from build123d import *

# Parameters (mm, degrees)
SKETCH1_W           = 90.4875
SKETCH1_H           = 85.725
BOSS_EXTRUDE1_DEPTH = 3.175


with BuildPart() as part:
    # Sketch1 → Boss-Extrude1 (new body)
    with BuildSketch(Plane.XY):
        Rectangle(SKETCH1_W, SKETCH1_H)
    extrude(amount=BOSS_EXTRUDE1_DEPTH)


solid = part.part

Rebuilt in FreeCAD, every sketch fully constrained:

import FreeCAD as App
import Part
import Sketcher
from FreeCAD import Vector
Q = App.Units.Quantity

doc = App.newDocument("Part")
params = doc.addObject("Spreadsheet::Sheet", "Params")
for row, (alias, value) in enumerate([
    ("sketch1_width", "3.5625 in"),
    ("sketch1_height", "3.375 in"),
    ("pad1_length", "0.125 in"),
], start=1):
    params.set(f"A{row}", alias)
    params.set(f"B{row}", "=" + value)
    params.setAlias(f"B{row}", alias)

body = doc.addObject("PartDesign::Body", "Body")

sketch1 = body.newObject("Sketcher::SketchObject", "Sketch")
sketch1.AttachmentSupport = (doc.getObject("XY_Plane"), [""])
sketch1.MapMode = "FlatFace"
sketch1.addGeometry([
    Part.LineSegment(Vector(-45, 43, 0), Vector(-45, -43, 0)),
    Part.LineSegment(Vector(-45, -43, 0), Vector(45, -43, 0)),
    Part.LineSegment(Vector(45, -43, 0), Vector(45, 43, 0)),
    Part.LineSegment(Vector(45, 43, 0), Vector(-45, 43, 0)),
], False)
sketch1.addConstraint([
    Sketcher.Constraint("Coincident", 0, 2, 1, 1),
    Sketcher.Constraint("Coincident", 1, 2, 2, 1),
    Sketcher.Constraint("Coincident", 2, 2, 3, 1),
    Sketcher.Constraint("Coincident", 3, 2, 0, 1),
    Sketcher.Constraint("Vertical", 0),
    Sketcher.Constraint("Horizontal", 1),
    Sketcher.Constraint("Vertical", 2),
    Sketcher.Constraint("Horizontal", 3),
    Sketcher.Constraint("Symmetric", 0, 2, 2, 2, -1, 1),
    Sketcher.Constraint("DistanceX", 1, 1, 1, 2, Q("3.5625 in")),
    Sketcher.Constraint("DistanceY", 0, 2, 0, 1, Q("3.375 in")),
])
sketch1.setExpression("Constraints[9]", "Params.sketch1_width")
sketch1.setExpression("Constraints[10]", "Params.sketch1_height")
pad1 = body.newObject("PartDesign::Pad", "Pad")
pad1.Profile = sketch1
pad1.setExpression("Length", "Params.pad1_length")

doc.recompute()
